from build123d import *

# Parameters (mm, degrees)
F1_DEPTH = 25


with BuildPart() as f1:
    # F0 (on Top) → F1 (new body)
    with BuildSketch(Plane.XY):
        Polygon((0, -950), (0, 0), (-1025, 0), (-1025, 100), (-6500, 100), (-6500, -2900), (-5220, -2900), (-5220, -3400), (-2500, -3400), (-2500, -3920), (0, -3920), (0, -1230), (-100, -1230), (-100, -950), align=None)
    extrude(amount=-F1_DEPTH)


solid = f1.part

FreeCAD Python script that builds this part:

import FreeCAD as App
import Part
import Sketcher

V = App.Vector


def add_polygon(sketch, points):
    """Adds a closed chain of lines whose ends are joined by coincident constraints."""
    first, n = sketch.GeometryCount, len(points)
    for a, b in zip(points, points[1:] + points[:1]):
        sketch.addGeometry(Part.LineSegment(App.Vector(*a, 0), App.Vector(*b, 0)), False)
    for i in range(n):
        sketch.addConstraint(Sketcher.Constraint("Coincident", first + i, 2, first + (i + 1) % n, 1))

doc = App.newDocument("Part")
params = doc.addObject("Spreadsheet::Sheet", "Params")
for row, (alias, value) in enumerate([
    ("sketch1_width", "1025 mm"),
    ("sketch1_width2", "5475 mm"),
    ("sketch1_width3", "1280 mm"),
    ("sketch1_width4", "2720 mm"),
    ("sketch1_width5", "100 mm"),
    ("pad1_length", "25 mm"),
], start=1):
    params.set(f"A{row}", alias)
    params.set(f"B{row}", "=" + value)
    params.setAlias(f"B{row}", alias)

body = doc.addObject("PartDesign::Body", "Body")

# Sketch on XY plane
sketch1 = doc.addObject("Sketcher::SketchObject", "Sketch")
body.addObject(sketch1)
sketch1.AttachmentSupport = (doc.XY_Plane, [""])
sketch1.MapMode = "FlatFace"
add_polygon(sketch1, [(0, -950), (0, 0), (-1025, 0), (-1025, 100), (-6500, 100), (-6500, -2900), (-5220, -2900), (-5220, -3400), (-2500, -3400), (-2500, -3920), (0, -3920), (0, -1230), (-100, -1230), (-100, -950)])  # lines 0-13
sketch1.addConstraint([
    Sketcher.Constraint("Vertical", 0),
    Sketcher.Constraint("Horizontal", 1),
    Sketcher.Constraint("Vertical", 2),
    Sketcher.Constraint("Horizontal", 3),
    Sketcher.Constraint("Vertical", 4),
    Sketcher.Constraint("Horizontal", 5),
    Sketcher.Constraint("Vertical", 6),
    Sketcher.Constraint("Horizontal", 7),
    Sketcher.Constraint("Vertical", 8),
    Sketcher.Constraint("Horizontal", 9),
    Sketcher.Constraint("Vertical", 10),
    Sketcher.Constraint("Horizontal", 11),
    Sketcher.Constraint("Vertical", 12),
    Sketcher.Constraint("Horizontal", 13),
    Sketcher.Constraint("Coincident", 0, 2, -1, 1),
    Sketcher.Constraint("PointOnObject", 9, 2, -2),
    Sketcher.Constraint("Equal", 13, 2),
    Sketcher.Constraint("DistanceX", 1, 2, 1, 1, 1025.0),
    Sketcher.Constraint("DistanceX", 3, 2, 3, 1, 5475.0),
    Sketcher.Constraint("DistanceX", 5, 1, 5, 2, 1280.0),
    Sketcher.Constraint("DistanceX", 7, 1, 7, 2, 2720.0),
    Sketcher.Constraint("DistanceX", 11, 2, 11, 1, 100.0),
    Sketcher.Constraint("DistanceY", 0, 1, 0, 2, 950.0),
    Sketcher.Constraint("DistanceY", 4, 2, 4, 1, 3000.0),
    Sketcher.Constraint("DistanceY", 6, 2, 6, 1, 500.0),
    Sketcher.Constraint("DistanceY", 8, 2, 8, 1, 520.0),
    Sketcher.Constraint("DistanceY", 10, 1, 10, 2, 2690.0),
])
sketch1.setExpression("Constraints[31]", "Params.sketch1_width")
sketch1.setExpression("Constraints[32]", "Params.sketch1_width2")
sketch1.setExpression("Constraints[33]", "Params.sketch1_width3")
sketch1.setExpression("Constraints[34]", "Params.sketch1_width4")
sketch1.setExpression("Constraints[35]", "Params.sketch1_width5")
pad1 = doc.addObject("PartDesign::Pad", "Pad")
body.addObject(pad1)
pad1.Profile = sketch1
pad1.setExpression("Length", "Params.pad1_length")
pad1.Reversed = True

doc.recompute()
